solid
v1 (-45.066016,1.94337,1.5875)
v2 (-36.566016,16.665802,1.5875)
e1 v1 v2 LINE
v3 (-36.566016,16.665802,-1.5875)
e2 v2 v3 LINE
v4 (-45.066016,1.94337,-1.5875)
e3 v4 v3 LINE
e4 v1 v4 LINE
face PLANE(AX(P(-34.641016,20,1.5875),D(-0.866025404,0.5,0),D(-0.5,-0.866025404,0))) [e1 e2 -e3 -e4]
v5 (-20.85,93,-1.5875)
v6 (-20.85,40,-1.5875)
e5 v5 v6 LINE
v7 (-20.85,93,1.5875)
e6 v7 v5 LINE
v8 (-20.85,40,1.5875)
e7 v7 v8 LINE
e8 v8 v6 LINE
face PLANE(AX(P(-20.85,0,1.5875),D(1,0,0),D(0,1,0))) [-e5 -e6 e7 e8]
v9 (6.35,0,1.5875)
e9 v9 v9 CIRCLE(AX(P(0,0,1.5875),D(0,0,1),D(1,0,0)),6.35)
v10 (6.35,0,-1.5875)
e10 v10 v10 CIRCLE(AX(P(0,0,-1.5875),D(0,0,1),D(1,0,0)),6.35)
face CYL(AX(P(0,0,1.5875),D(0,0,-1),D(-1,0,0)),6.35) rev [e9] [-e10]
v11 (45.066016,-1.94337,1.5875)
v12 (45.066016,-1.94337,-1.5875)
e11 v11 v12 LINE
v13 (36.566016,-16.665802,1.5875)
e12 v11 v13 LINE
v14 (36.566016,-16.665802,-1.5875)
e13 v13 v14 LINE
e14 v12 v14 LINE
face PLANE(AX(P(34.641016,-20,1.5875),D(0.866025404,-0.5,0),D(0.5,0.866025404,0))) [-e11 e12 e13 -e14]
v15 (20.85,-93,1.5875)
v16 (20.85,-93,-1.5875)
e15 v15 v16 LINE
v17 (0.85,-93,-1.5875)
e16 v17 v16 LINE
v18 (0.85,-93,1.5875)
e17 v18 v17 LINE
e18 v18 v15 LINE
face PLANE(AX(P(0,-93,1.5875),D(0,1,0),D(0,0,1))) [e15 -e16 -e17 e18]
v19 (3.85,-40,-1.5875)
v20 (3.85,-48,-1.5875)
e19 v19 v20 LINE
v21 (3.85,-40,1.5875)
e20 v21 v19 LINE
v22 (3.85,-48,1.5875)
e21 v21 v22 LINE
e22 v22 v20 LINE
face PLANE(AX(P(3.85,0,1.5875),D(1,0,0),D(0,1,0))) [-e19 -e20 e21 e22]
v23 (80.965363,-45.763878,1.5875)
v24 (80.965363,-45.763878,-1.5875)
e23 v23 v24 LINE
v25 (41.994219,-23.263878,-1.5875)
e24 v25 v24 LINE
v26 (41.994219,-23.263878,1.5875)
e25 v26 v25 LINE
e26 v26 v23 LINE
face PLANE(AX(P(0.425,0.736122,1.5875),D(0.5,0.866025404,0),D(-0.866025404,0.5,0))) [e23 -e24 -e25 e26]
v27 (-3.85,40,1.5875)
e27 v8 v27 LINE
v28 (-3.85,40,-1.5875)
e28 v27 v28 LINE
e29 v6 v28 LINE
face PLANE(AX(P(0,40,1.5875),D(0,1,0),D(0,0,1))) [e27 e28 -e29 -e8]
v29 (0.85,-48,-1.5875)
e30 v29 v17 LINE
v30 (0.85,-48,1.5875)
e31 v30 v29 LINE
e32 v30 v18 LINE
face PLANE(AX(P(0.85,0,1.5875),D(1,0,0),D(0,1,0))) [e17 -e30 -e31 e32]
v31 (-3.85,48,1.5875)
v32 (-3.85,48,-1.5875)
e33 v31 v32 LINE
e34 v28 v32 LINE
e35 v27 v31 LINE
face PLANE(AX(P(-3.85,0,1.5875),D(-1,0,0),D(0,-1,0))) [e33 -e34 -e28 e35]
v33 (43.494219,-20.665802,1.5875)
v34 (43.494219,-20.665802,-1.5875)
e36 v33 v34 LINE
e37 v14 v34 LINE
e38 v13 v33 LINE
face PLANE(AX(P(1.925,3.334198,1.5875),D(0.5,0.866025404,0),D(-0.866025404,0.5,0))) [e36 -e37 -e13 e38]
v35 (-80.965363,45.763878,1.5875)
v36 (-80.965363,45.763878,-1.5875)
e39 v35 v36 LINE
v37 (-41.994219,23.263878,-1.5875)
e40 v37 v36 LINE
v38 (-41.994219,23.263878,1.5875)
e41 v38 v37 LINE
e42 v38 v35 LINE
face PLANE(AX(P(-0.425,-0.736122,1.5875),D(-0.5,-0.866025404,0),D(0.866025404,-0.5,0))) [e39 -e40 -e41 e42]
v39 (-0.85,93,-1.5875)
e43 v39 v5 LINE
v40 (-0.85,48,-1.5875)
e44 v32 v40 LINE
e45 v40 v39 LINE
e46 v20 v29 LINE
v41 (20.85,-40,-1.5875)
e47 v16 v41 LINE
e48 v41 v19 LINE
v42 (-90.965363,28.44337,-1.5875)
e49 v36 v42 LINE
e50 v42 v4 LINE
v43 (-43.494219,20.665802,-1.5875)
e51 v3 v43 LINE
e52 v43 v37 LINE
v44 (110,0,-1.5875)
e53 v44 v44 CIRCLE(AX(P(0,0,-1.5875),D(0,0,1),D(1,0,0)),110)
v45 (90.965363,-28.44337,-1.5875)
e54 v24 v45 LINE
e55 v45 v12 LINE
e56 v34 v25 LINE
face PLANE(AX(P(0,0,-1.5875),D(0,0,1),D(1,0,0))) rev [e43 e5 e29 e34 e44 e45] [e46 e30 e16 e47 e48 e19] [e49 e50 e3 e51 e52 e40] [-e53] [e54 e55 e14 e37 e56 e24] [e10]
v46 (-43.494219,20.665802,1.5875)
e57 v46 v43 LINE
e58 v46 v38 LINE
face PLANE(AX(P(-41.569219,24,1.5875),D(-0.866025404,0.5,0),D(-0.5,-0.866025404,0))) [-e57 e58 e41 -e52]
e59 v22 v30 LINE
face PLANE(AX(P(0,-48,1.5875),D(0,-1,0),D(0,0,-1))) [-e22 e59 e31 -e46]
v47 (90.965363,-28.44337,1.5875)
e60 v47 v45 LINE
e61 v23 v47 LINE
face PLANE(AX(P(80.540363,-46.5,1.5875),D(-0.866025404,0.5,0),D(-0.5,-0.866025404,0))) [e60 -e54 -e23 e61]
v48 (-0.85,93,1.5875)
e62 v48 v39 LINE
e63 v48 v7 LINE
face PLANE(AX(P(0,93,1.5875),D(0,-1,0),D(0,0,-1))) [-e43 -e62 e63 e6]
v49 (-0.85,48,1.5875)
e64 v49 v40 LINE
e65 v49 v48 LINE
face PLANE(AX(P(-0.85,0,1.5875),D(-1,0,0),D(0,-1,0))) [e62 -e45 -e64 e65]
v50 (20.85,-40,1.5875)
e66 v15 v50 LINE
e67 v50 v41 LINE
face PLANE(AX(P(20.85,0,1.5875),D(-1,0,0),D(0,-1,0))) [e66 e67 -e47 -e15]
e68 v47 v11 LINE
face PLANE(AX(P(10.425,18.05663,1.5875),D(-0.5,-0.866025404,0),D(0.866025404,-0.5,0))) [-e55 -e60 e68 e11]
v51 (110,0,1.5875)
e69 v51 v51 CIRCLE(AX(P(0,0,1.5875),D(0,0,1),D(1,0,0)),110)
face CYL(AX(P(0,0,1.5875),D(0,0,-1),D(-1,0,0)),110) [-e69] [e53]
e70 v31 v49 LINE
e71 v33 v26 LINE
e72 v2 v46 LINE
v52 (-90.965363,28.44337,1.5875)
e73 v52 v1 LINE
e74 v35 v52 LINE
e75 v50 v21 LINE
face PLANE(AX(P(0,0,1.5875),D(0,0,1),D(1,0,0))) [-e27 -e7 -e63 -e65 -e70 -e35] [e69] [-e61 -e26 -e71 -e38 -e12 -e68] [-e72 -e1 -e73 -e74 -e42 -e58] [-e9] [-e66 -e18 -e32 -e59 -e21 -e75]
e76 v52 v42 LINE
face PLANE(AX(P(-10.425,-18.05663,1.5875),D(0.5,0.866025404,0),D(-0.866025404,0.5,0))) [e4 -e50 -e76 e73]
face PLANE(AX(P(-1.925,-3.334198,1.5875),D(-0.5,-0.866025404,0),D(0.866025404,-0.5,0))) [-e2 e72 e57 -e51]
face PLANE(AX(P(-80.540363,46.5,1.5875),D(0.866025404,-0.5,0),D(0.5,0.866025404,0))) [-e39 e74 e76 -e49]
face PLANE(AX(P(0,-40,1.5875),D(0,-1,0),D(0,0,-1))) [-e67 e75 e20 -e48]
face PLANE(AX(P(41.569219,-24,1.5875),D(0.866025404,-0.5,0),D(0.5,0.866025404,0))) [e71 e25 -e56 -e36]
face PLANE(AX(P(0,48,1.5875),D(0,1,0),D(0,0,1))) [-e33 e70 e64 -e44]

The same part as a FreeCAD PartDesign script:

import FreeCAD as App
import Part
import Sketcher

V = App.Vector
Q = App.Units.Quantity


def add_polygon(sketch, points):
    """Adds a closed chain of lines whose ends are joined by coincident constraints."""
    first, n = sketch.GeometryCount, len(points)
    for a, b in zip(points, points[1:] + points[:1]):
        sketch.addGeometry(Part.LineSegment(App.Vector(*a, 0), App.Vector(*b, 0)), False)
    for i in range(n):
        sketch.addConstraint(Sketcher.Constraint("Coincident", first + i, 2, first + (i + 1) % n, 1))

doc = App.newDocument("Part")
body = doc.addObject("PartDesign::Body", "Body")

# Sketch on XY plane
sketch1 = doc.addObject("Sketcher::SketchObject", "Sketch")
body.addObject(sketch1)
sketch1.AttachmentSupport = (doc.XY_Plane, [""])
sketch1.MapMode = "FlatFace"
sketch1.addGeometry(Part.Circle(V(0, 0, 0), V(0, 0, 1), 110), False)  # 0
add_polygon(sketch1, [(3.9, -40), (20.9, -40), (20.9, -93), (0.8, -93), (0.8, -48), (3.9, -48)])  # lines 1-6
add_polygon(sketch1, [(36.6, -16.7), (37.8, -14.5), (43.8, -4.1), (45.1, -1.9), (91, -28.4), (81, -45.8), (42, -23.3), (43.5, -20.7)])  # lines 7-14
add_polygon(sketch1, [(-36.6, 16.7), (-37.8, 14.5), (-43.8, 4.1), (-45.1, 1.9), (-91, 28.4), (-81, 45.8), (-42, 23.3), (-43.5, 20.7)])  # lines 15-22
add_polygon(sketch1, [(-3.9, 40), (-20.9, 40), (-20.9, 93), (-0.8, 93), (-0.8, 48), (-3.9, 48)])  # lines 23-28
sketch1.addGeometry(Part.Circle(V(0, 0, 0), V(0, 0, 1), 6.3), False)  # 29
sketch1.addConstraint([
    Sketcher.Constraint("Horizontal", 1),
    Sketcher.Constraint("Vertical", 2),
    Sketcher.Constraint("Horizontal", 3),
    Sketcher.Constraint("Vertical", 4),
    Sketcher.Constraint("Horizontal", 5),
    Sketcher.Constraint("Vertical", 6),
    Sketcher.Constraint("Horizontal", 23),
    Sketcher.Constraint("Vertical", 24),
    Sketcher.Constraint("Horizontal", 25),
    Sketcher.Constraint("Vertical", 26),
    Sketcher.Constraint("Horizontal", 27),
    Sketcher.Constraint("Vertical", 28),
    Sketcher.Constraint("Coincident", 0, 3, -1, 1),
    Sketcher.Constraint("Coincident", 29, 3, -1, 1),
    Sketcher.Constraint("Symmetric", 7, 2, 15, 2, -1, 1),
    Sketcher.Constraint("Symmetric", 8, 2, 16, 2, -1, 1),
    Sketcher.Constraint("Symmetric", 9, 2, 17, 2, -1, 1),
    Sketcher.Constraint("Symmetric", 10, 2, 18, 2, -1, 1),
    Sketcher.Constraint("Symmetric", 11, 2, 19, 2, -1, 1),
    Sketcher.Constraint("Symmetric", 12, 2, 20, 2, -1, 1),
    Sketcher.Constraint("Symmetric", 13, 2, 21, 2, -1, 1),
    Sketcher.Constraint("Symmetric", 14, 2, 22, 2, -1, 1),
    Sketcher.Constraint("Symmetric", 1, 2, 23, 2, -1, 1),
    Sketcher.Constraint("Symmetric", 3, 2, 25, 2, -1, 1),
    Sketcher.Constraint("Symmetric", 5, 2, 27, 2, -1, 1),
    Sketcher.Constraint("Parallel", 7, 8),
    Sketcher.Constraint("Parallel", 8, 9),
    Sketcher.Constraint("Perpendicular", 9, 10),
    Sketcher.Constraint("Perpendicular", 10, 11),
    Sketcher.Constraint("Perpendicular", 11, 12),
    Sketcher.Constraint("Perpendicular", 12, 13),
    Sketcher.Constraint("Perpendicular", 13, 14),
    Sketcher.Constraint("Equal", 7, 9),
    Sketcher.Constraint("Diameter", 0, 220.0),
    Sketcher.Constraint("Diameter", 29, 12.7),
    Sketcher.Constraint("DistanceX", 1, 1, 1, 2, 17.0),
    Sketcher.Constraint("DistanceX", 3, 2, 3, 1, 20.0),
    Sketcher.Constraint("DistanceY", 2, 2, 2, 1, 53.0),
    Sketcher.Constraint("DistanceY", 4, 1, 4, 2, 45.0),
    Sketcher.Constraint("Angle", 7, Q("60 deg")),
    Sketcher.Constraint("Distance", 8, 12.0),
    Sketcher.Constraint("Distance", 10, 53.0),
    Sketcher.Constraint("Distance", 11, 20.0),
    Sketcher.Constraint("Distance", 12, 45.0),
    Sketcher.Constraint("Distance", 13, 3.0),
    Sketcher.Constraint("DistanceY", 1, 2, -1, 1, 40.0),
    Sketcher.Constraint("DistanceX", -1, 1, 1, 2, 20.85),
    Sketcher.Constraint("DistanceY", 7, 2, -1, 1, 14.500739),
    Sketcher.Constraint("DistanceX", -1, 1, 12, 2, 41.994219),
])
pad1 = doc.addObject("PartDesign::Pad", "Pad")
body.addObject(pad1)
pad1.Profile = sketch1
pad1.Length = 3.175
pad1.Midplane = True

doc.recompute()
